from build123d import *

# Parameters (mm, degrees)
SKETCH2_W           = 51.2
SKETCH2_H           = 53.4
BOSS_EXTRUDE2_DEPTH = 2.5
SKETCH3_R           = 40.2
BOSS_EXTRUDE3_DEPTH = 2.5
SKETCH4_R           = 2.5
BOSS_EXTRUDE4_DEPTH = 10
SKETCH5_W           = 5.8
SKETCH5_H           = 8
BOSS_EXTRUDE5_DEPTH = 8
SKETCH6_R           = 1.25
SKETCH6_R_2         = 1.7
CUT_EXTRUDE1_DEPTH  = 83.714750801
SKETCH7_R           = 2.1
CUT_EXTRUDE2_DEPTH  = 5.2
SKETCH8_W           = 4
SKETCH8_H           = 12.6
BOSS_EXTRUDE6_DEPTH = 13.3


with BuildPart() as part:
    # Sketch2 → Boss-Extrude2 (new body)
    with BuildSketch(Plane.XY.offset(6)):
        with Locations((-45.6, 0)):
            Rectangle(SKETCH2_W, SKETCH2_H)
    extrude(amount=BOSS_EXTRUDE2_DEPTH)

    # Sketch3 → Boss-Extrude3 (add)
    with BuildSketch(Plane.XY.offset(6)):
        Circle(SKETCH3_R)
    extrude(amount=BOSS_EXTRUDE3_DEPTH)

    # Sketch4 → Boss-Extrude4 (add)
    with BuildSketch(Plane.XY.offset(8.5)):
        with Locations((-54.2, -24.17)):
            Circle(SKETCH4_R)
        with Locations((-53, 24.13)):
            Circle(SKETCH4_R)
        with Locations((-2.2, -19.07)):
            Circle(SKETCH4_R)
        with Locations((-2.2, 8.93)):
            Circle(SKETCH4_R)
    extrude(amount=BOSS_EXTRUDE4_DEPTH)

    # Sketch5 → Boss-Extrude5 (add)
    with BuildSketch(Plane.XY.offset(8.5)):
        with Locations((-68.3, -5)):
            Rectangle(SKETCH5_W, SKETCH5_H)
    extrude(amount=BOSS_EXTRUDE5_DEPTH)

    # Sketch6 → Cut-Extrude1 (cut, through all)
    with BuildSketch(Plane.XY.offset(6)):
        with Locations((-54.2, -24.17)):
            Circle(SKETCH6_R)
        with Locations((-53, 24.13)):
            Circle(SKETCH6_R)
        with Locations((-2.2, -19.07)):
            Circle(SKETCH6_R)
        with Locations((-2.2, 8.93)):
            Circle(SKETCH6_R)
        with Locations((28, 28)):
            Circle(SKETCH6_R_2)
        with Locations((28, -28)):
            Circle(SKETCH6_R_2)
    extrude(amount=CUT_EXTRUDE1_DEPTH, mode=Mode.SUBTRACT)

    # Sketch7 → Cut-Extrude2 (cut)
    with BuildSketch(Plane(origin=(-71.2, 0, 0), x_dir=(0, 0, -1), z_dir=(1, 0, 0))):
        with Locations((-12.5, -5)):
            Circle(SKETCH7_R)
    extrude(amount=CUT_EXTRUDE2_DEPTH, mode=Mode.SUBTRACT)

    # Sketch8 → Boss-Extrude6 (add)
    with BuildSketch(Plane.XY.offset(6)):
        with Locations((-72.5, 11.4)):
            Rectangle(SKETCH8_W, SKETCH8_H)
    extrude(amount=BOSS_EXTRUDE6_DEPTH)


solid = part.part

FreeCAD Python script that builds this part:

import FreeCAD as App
import Part
import Sketcher
from FreeCAD import Vector
Q = App.Units.Quantity

doc = App.newDocument("Part")
body = doc.addObject("PartDesign::Body", "Body")

sketch1 = body.newObject("Sketcher::SketchObject", "Sketch")
sketch1.AttachmentSupport = (doc.getObject("XY_Plane"), [""])
sketch1.MapMode = "FlatFace"
sketch1.AttachmentOffset = App.Placement(Vector(0, 0, 6), App.Rotation())
sketch1.addGeometry([
    Part.LineSegment(Vector(-71, 27, 0), Vector(-71, -27, 0)),
    Part.LineSegment(Vector(-71, -27, 0), Vector(-20, -27, 0)),
    Part.LineSegment(Vector(-20, -27, 0), Vector(-20, 27, 0)),
    Part.LineSegment(Vector(-20, 27, 0), Vector(-71, 27, 0)),
], False)
sketch1.addConstraint([
    Sketcher.Constraint("Coincident", 0, 2, 1, 1),
    Sketcher.Constraint("Coincident", 1, 2, 2, 1),
    Sketcher.Constraint("Coincident", 2, 2, 3, 1),
    Sketcher.Constraint("Coincident", 3, 2, 0, 1),
    Sketcher.Constraint("Vertical", 0),
    Sketcher.Constraint("Horizontal", 1),
    Sketcher.Constraint("Vertical", 2),
    Sketcher.Constraint("Horizontal", 3),
    Sketcher.Constraint("DistanceX", 1, 1, 1, 2, Q("51.2 mm")),
    Sketcher.Constraint("DistanceY", 0, 2, 0, 1, Q("53.4 mm")),
    Sketcher.Constraint("DistanceX", 1, 2, -1, 1, Q("20 mm")),
    Sketcher.Constraint("DistanceY", 0, 2, -1, 1, Q("26.7 mm")),
])
pad1 = body.newObject("PartDesign::Pad", "Pad")
pad1.Profile = sketch1
pad1.Length = 2.5

sketch2 = body.newObject("Sketcher::SketchObject", "Sketch001")
sketch2.AttachmentSupport = (doc.getObject("XY_Plane"), [""])
sketch2.MapMode = "FlatFace"
sketch2.AttachmentOffset = App.Placement(Vector(0, 0, 6), App.Rotation())
sketch2.addGeometry(Part.Circle(Vector(0, 0, 0), Vector(0, 0, 1), 40), False)
sketch2.addConstraint([
    Sketcher.Constraint("Coincident", 0, 3, -1, 1),
    Sketcher.Constraint("Diameter", 0, Q("80.4 mm")),
])
pad2 = body.newObject("PartDesign::Pad", "Pad001")
pad2.Profile = sketch2
pad2.Length = 2.5

sketch3 = body.newObject("Sketcher::SketchObject", "Sketch002")
sketch3.AttachmentSupport = (doc.getObject("XY_Plane"), [""])
sketch3.MapMode = "FlatFace"
sketch3.AttachmentOffset = App.Placement(Vector(0, 0, 8.5), App.Rotation())
sketch3.addGeometry([
    Part.Circle(Vector(-54.2, -24.2, 0), Vector(0, 0, 1), 2.5),
    Part.Circle(Vector(-53, 24.1, 0), Vector(0, 0, 1), 2.5),
    Part.Circle(Vector(-2.2, -19.1, 0), Vector(0, 0, 1), 2.5),
    Part.Circle(Vector(-2.2, 8.9, 0), Vector(0, 0, 1), 2.5),
], False)
sketch3.addConstraint([
    Sketcher.Constraint("Equal", 0, 1),
    Sketcher.Constraint("Equal", 1, 2),
    Sketcher.Constraint("Equal", 2, 3),
    Sketcher.Constraint("Vertical", 2, 3, 3, 3),
    Sketcher.Constraint("Diameter", 0, Q("5 mm")),
    Sketcher.Constraint("DistanceX", 1, 3, -1, 1, Q("53 mm")),
    Sketcher.Constraint("DistanceX", 0, 3, 2, 3, Q("52 mm")),
    Sketcher.Constraint("DistanceY", 2, 3, 3, 3, Q("28 mm")),
    Sketcher.Constraint("DistanceX", 0, 3, -1, 1, Q("54.2 mm")),
    Sketcher.Constraint("DistanceY", 0, 3, 1, 3, Q("48.3 mm")),
    Sketcher.Constraint("DistanceY", 0, 3, 2, 3, Q("5.1 mm")),
    Sketcher.Constraint("DistanceY", 0, 3, -1, 1, Q("24.17 mm")),
])
pad3 = body.newObject("PartDesign::Pad", "Pad002")
pad3.Profile = sketch3
pad3.Length = 10

sketch4 = body.newObject("Sketcher::SketchObject", "Sketch003")
sketch4.AttachmentSupport = (doc.getObject("XY_Plane"), [""])
sketch4.MapMode = "FlatFace"
sketch4.AttachmentOffset = App.Placement(Vector(0, 0, 8.5), App.Rotation())
sketch4.addGeometry([
    Part.LineSegment(Vector(-71, -1, 0), Vector(-71, -9, 0)),
    Part.LineSegment(Vector(-71, -9, 0), Vector(-65, -9, 0)),
    Part.LineSegment(Vector(-65, -9, 0), Vector(-65, -1, 0)),
    Part.LineSegment(Vector(-65, -1, 0), Vector(-71, -1, 0)),
], False)
sketch4.addConstraint([
    Sketcher.Constraint("Coincident", 0, 2, 1, 1),
    Sketcher.Constraint("Coincident", 1, 2, 2, 1),
    Sketcher.Constraint("Coincident", 2, 2, 3, 1),
    Sketcher.Constraint("Coincident", 3, 2, 0, 1),
    Sketcher.Constraint("Vertical", 0),
    Sketcher.Constraint("Horizontal", 1),
    Sketcher.Constraint("Vertical", 2),
    Sketcher.Constraint("Horizontal", 3),
    Sketcher.Constraint("DistanceY", 0, 2, 0, 1, Q("8 mm")),
    Sketcher.Constraint("DistanceX", 1, 1, 1, 2, Q("5.8 mm")),
    Sketcher.Constraint("DistanceY", 0, 2, -1, 1, Q("9 mm")),
    Sketcher.Constraint("DistanceX", 0, 2, -1, 1, Q("71.2 mm")),
])
pad4 = body.newObject("PartDesign::Pad", "Pad003")
pad4.Profile = sketch4
pad4.Length = 8

sketch5 = body.newObject("Sketcher::SketchObject", "Sketch004")
sketch5.AttachmentSupport = (doc.getObject("XY_Plane"), [""])
sketch5.MapMode = "FlatFace"
sketch5.AttachmentOffset = App.Placement(Vector(0, 0, 6), App.Rotation())
sketch5.addGeometry([
    Part.Circle(Vector(-54.2, -24.2, 0), Vector(0, 0, 1), 1.2),
    Part.Circle(Vector(-53, 24.1, 0), Vector(0, 0, 1), 1.2),
    Part.Circle(Vector(-2.2, -19.1, 0), Vector(0, 0, 1), 1.2),
    Part.Circle(Vector(-2.2, 8.9, 0), Vector(0, 0, 1), 1.2),
    Part.Circle(Vector(28, 28, 0), Vector(0, 0, 1), 1.7),
    Part.Circle(Vector(28, -28, 0), Vector(0, 0, 1), 1.7),
], False)
sketch5.addConstraint([
    Sketcher.Constraint("Equal", 0, 1),
    Sketcher.Constraint("Equal", 1, 2),
    Sketcher.Constraint("Equal", 2, 3),
    Sketcher.Constraint("Equal", 4, 5),
    Sketcher.Constraint("Symmetric", 4, 3, 5, 3, -1),
    Sketcher.Constraint("Vertical", 2, 3, 3, 3),
    Sketcher.Constraint("Diameter", 0, Q("2.5 mm")),
    Sketcher.Constraint("Diameter", 4, Q("3.4 mm")),
    Sketcher.Constraint("DistanceX", 1, 3, -1, 1, Q("53 mm")),
    Sketcher.Constraint("DistanceX", -1, 1, 4, 3, Q("28 mm")),
    Sketcher.Constraint("DistanceY", -1, 1, 4, 3, Q("28 mm")),
    Sketcher.Constraint("DistanceX", 0, 3, 2, 3, Q("52 mm")),
    Sketcher.Constraint("DistanceY", 2, 3, 3, 3, Q("28 mm")),
    Sketcher.Constraint("DistanceX", 0, 3, -1, 1, Q("54.2 mm")),
    Sketcher.Constraint("DistanceY", 0, 3, 1, 3, Q("48.3 mm")),
    Sketcher.Constraint("DistanceY", 0, 3, 2, 3, Q("5.1 mm")),
    Sketcher.Constraint("DistanceY", 0, 3, -1, 1, Q("24.17 mm")),
])
pocket1 = body.newObject("PartDesign::Pocket", "Pocket")
pocket1.Profile = sketch5
pocket1.Type = "ThroughAll"
pocket1.Reversed = True

sketch6 = body.newObject("Sketcher::SketchObject", "Sketch005")
sketch6.AttachmentSupport = (doc.getObject("YZ_Plane"), [""])
sketch6.MapMode = "FlatFace"
sketch6.AttachmentOffset = App.Placement(Vector(0, 0, -71.2), App.Rotation())
sketch6.addGeometry(Part.Circle(Vector(-5, 12.5, 0), Vector(0, 0, 1), 2.1), False)
sketch6.addConstraint([
    Sketcher.Constraint("Diameter", 0, Q("4.2 mm")),
    Sketcher.Constraint("DistanceX", 0, 3, -1, 1, Q("5 mm")),
    Sketcher.Constraint("DistanceY", -1, 1, 0, 3, Q("12.5 mm")),
])
pocket2 = body.newObject("PartDesign::Pocket", "Pocket001")
pocket2.Profile = sketch6
pocket2.Length = 5.2
pocket2.Reversed = True

sketch7 = body.newObject("Sketcher::SketchObject", "Sketch006")
sketch7.AttachmentSupport = (doc.getObject("XY_Plane"), [""])
sketch7.MapMode = "FlatFace"
sketch7.AttachmentOffset = App.Placement(Vector(0, 0, 6), App.Rotation())
sketch7.addGeometry([
    Part.LineSegment(Vector(-74.5, 17.7, 0), Vector(-74.5, 5.1, 0)),
    Part.LineSegment(Vector(-74.5, 5.1, 0), Vector(-70.5, 5.1, 0)),
    Part.LineSegment(Vector(-70.5, 5.1, 0), Vector(-70.5, 17.7, 0)),
    Part.LineSegment(Vector(-70.5, 17.7, 0), Vector(-74.5, 17.7, 0)),
], False)
sketch7.addConstraint([
    Sketcher.Constraint("Coincident", 0, 2, 1, 1),
    Sketcher.Constraint("Coincident", 1, 2, 2, 1),
    Sketcher.Constraint("Coincident", 2, 2, 3, 1),
    Sketcher.Constraint("Coincident", 3, 2, 0, 1),
    Sketcher.Constraint("Vertical", 0),
    Sketcher.Constraint("Horizontal", 1),
    Sketcher.Constraint("Vertical", 2),
    Sketcher.Constraint("Horizontal", 3),
    Sketcher.Constraint("DistanceX", 1, 1, 1, 2, Q("4 mm")),
    Sketcher.Constraint("DistanceY", 0, 2, 0, 1, Q("12.6 mm")),
    Sketcher.Constraint("DistanceX", 0, 2, -1, 1, Q("74.5 mm")),
    Sketcher.Constraint("DistanceY", -1, 1, 0, 2, Q("5.1 mm")),
])
pad5 = body.newObject("PartDesign::Pad", "Pad004")
pad5.Profile = sketch7
pad5.Length = 13.3

doc.recompute()
